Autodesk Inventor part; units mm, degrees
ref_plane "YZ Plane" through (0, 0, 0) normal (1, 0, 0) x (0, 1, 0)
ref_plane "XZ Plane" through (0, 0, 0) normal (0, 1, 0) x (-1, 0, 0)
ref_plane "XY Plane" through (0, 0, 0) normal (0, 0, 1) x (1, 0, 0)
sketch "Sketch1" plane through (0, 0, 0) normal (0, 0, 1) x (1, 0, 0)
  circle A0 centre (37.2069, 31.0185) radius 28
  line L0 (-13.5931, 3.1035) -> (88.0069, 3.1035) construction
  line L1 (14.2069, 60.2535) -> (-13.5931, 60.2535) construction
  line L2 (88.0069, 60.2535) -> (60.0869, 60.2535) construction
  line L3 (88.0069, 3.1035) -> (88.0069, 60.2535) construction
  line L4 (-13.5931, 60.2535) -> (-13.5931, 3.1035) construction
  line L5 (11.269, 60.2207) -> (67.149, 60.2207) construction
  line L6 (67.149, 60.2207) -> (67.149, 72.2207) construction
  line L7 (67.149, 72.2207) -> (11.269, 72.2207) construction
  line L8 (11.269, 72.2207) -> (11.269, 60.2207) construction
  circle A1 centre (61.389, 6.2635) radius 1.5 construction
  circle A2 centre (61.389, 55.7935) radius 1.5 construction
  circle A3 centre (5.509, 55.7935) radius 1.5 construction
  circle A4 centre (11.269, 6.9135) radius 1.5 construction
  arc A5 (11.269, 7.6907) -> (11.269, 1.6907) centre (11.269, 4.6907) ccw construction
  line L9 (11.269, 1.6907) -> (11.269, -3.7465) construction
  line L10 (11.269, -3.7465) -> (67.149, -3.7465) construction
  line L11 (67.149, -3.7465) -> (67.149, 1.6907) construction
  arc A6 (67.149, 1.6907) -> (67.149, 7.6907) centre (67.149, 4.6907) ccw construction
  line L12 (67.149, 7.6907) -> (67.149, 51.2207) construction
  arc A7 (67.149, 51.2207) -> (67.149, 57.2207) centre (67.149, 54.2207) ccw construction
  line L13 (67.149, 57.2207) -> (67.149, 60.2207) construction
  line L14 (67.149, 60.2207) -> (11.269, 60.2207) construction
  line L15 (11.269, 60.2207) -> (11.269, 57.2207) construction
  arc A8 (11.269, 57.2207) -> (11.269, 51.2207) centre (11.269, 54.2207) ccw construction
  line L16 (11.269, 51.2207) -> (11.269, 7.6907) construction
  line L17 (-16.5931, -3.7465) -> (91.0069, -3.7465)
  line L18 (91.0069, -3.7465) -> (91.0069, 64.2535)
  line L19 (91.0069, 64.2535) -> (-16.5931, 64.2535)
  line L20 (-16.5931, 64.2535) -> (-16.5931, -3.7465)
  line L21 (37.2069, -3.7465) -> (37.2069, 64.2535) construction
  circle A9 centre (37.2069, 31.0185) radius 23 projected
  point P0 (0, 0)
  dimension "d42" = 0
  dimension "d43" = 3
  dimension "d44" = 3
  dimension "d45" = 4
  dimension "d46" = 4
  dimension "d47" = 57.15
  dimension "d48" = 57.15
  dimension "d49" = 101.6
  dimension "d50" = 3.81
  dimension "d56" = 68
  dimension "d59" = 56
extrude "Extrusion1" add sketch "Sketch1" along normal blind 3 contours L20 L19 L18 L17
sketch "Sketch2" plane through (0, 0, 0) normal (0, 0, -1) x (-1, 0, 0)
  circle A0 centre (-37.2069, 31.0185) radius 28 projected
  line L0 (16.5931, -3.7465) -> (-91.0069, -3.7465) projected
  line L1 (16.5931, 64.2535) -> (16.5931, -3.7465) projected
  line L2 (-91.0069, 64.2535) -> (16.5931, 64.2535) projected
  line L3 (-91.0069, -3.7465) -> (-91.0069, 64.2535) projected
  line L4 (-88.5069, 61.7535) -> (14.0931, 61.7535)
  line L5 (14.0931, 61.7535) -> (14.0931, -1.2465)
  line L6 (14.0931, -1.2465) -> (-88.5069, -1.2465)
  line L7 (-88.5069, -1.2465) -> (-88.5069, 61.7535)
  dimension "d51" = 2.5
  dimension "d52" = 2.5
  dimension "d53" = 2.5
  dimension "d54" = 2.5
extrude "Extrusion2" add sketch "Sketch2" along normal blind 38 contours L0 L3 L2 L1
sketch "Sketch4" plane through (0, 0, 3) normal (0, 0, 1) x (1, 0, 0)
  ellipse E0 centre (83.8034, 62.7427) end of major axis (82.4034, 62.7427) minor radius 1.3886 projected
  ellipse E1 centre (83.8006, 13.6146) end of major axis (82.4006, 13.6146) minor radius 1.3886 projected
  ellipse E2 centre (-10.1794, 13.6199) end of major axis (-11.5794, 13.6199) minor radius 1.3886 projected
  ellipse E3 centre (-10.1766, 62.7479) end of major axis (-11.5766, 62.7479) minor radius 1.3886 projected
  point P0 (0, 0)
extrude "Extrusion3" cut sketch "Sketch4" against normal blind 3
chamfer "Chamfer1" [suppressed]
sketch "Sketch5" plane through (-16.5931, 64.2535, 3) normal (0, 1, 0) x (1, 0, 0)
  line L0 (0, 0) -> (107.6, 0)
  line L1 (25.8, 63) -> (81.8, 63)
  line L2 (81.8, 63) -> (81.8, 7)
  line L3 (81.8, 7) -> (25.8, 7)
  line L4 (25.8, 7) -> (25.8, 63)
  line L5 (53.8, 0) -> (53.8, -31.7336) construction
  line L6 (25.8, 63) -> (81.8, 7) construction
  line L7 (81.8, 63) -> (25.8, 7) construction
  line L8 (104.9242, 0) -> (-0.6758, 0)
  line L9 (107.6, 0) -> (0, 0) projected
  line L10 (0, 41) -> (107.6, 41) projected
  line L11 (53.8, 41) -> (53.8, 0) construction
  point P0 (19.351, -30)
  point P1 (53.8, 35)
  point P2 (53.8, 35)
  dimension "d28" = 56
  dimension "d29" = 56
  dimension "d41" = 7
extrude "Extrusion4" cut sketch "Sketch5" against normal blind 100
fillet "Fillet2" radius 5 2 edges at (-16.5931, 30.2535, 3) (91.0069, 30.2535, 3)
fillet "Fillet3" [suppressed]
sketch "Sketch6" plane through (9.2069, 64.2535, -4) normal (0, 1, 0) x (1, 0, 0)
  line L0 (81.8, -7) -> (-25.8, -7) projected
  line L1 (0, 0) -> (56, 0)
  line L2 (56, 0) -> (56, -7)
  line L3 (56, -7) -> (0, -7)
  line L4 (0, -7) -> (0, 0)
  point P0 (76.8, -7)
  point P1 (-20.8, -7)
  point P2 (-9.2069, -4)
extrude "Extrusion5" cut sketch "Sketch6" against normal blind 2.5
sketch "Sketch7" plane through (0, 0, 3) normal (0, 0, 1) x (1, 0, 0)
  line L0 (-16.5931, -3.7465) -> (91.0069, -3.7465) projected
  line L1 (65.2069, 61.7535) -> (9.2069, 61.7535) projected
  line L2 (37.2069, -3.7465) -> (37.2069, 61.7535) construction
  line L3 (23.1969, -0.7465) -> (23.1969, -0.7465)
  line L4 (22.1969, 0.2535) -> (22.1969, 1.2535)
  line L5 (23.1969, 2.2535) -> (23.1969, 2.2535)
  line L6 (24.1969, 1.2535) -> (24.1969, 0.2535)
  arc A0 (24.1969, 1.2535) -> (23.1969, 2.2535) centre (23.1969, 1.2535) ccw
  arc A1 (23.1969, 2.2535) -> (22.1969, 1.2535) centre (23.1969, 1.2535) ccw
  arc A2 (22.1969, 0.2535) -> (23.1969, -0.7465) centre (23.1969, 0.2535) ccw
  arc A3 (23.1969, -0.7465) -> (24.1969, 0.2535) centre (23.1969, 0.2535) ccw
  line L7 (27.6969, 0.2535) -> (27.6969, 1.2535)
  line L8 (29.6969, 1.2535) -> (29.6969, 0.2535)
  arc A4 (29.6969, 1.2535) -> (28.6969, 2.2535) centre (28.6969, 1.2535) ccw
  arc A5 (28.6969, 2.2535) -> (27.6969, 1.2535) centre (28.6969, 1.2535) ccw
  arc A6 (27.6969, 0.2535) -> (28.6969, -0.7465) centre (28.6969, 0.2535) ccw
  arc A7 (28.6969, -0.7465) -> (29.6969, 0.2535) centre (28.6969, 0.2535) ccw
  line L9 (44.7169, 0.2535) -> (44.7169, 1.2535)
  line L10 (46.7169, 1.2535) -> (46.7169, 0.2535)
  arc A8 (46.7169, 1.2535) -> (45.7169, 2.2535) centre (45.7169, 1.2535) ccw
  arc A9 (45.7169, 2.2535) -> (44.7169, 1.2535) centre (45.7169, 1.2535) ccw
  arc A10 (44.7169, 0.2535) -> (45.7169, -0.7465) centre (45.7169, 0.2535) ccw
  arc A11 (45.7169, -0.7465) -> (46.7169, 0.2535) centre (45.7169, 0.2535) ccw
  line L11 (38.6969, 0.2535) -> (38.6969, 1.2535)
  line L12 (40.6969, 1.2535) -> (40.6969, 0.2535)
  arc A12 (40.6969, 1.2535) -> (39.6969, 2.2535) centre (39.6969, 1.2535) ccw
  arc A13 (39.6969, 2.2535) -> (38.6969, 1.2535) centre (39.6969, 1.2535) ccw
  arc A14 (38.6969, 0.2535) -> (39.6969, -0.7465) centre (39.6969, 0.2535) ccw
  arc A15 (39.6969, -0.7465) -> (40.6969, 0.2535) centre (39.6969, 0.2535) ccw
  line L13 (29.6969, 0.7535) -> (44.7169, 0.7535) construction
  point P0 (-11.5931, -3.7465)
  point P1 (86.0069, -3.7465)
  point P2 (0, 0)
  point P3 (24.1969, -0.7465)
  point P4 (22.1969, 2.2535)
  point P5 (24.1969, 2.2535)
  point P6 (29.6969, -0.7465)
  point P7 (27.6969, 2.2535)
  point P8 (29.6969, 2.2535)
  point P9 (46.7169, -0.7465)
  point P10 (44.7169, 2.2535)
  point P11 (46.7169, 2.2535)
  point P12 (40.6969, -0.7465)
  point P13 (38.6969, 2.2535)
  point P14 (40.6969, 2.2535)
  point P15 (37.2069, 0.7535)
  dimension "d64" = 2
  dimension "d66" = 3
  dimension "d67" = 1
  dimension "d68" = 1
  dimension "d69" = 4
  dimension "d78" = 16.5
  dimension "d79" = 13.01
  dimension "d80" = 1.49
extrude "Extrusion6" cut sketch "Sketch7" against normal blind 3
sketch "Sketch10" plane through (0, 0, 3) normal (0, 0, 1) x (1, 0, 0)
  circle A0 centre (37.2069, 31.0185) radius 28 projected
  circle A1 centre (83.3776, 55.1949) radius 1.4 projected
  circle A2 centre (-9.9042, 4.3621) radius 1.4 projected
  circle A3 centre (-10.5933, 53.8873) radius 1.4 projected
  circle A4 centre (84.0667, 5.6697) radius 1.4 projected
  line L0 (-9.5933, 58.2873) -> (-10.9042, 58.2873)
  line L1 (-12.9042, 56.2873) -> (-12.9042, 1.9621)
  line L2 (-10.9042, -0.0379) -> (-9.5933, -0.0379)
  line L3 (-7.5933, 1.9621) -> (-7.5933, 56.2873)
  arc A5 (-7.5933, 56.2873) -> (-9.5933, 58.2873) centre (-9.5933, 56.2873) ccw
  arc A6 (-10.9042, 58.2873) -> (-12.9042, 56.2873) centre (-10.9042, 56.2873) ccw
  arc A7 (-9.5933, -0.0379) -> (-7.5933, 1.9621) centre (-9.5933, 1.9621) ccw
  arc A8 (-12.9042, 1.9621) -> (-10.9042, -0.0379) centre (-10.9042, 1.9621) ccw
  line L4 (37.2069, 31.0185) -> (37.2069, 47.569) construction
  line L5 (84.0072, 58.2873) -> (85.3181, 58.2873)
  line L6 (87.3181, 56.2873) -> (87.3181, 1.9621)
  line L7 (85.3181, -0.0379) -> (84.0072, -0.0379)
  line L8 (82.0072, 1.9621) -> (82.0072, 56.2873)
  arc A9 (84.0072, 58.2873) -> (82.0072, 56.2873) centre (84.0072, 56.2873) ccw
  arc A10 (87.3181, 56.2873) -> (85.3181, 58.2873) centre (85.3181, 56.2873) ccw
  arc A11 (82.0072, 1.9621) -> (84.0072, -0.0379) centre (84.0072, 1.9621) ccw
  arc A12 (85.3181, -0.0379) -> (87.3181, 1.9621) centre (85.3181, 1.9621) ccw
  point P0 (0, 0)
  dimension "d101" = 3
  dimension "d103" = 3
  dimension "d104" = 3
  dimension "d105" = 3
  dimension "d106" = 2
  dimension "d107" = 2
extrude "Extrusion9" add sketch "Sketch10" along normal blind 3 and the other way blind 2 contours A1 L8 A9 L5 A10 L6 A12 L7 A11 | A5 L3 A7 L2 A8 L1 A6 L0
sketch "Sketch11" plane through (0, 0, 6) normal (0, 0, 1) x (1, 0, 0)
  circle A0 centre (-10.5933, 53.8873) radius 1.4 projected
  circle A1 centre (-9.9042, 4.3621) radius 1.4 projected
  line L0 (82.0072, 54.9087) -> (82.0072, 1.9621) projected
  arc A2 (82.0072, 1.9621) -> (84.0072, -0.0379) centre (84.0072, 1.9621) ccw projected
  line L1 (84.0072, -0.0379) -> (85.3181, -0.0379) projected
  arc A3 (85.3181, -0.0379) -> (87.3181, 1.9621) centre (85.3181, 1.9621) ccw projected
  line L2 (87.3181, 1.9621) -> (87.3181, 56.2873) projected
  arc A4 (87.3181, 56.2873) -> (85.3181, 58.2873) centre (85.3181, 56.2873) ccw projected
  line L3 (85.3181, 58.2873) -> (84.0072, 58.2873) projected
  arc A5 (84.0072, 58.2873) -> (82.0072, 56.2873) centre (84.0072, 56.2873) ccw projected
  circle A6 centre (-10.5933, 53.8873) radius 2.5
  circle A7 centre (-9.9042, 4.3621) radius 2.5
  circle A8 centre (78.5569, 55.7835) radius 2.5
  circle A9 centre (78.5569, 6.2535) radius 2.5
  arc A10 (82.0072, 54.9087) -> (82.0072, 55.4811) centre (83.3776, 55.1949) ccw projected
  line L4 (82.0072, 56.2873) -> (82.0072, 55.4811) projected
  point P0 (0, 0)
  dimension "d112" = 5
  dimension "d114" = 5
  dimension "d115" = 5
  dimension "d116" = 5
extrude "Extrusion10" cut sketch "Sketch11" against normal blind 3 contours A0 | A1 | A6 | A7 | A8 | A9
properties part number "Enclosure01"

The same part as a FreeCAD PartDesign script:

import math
import FreeCAD as App
import Part
import Sketcher
from FreeCAD import Vector


def edges_at(feature, points):
    """Names of the edges that pass closest to the given points."""
    edges = feature.Shape.Edges
    near = lambda p: min(range(len(edges)), key=lambda i: edges[i].distToShape(Part.Vertex(*p))[0])
    return sorted({f"Edge{near(p) + 1}" for p in points})

doc = App.newDocument("Part")
params = doc.addObject("Spreadsheet::Sheet", "Params")
for row, (alias, value) in enumerate([
    ("sketch1_diameter", "56 mm"),
    ("sketch1_height", "68 mm"),
    ("sketch1_width", "107.6 mm"),
    ("pad1_length", "3 mm"),
    ("sketch2_height", "68 mm"),
    ("sketch2_width", "107.6 mm"),
    ("pad2_length", "38 mm"),
    ("pocket1_length", "3 mm"),
    ("sketch4_width", "56 mm"),
    ("pocket2_length", "100 mm"),
    ("fillet_radius", "5 mm"),
    ("sketch5_width", "56 mm"),
    ("sketch5_height", "7 mm"),
    ("pocket3_length", "2.5 mm"),
    ("sketch6_radius", "1 mm"),
    ("sketch6_height", "1 mm"),
    ("pocket4_length", "3 mm"),
    ("sketch7_radius", "2 mm"),
    ("sketch7_diameter", "2.8 mm"),
    ("pad3_length", "3 mm"),
    ("pad3_length2", "2 mm"),
    ("sketch8_diameter", "5 mm"),
    ("pocket5_length", "3 mm"),
], start=1):
    params.set(f"A{row}", alias)
    params.set(f"B{row}", "=" + value)
    params.setAlias(f"B{row}", alias)

body = doc.addObject("PartDesign::Body", "Body")

# Sketch on XY plane
sketch1 = body.newObject("Sketcher::SketchObject", "Sketch")
sketch1.AttachmentSupport = (doc.getObject("XY_Plane"), [""])
sketch1.MapMode = "FlatFace"
sketch1.addGeometry([
    Part.LineSegment(Vector(-17, 64, 0), Vector(-17, -4, 0)),  # 0
    Part.LineSegment(Vector(-17, -4, 0), Vector(91, -4, 0)),  # 1
    Part.LineSegment(Vector(91, -4, 0), Vector(91, 64, 0)),  # 2
    Part.LineSegment(Vector(91, 64, 0), Vector(-17, 64, 0)),  # 3
    Part.Circle(Vector(37, 31, 0), Vector(0, 0, 1), 28),  # 4
], False)
sketch1.addConstraint([
    Sketcher.Constraint("Coincident", 0, 2, 1, 1),
    Sketcher.Constraint("Coincident", 1, 2, 2, 1),
    Sketcher.Constraint("Coincident", 2, 2, 3, 1),
    Sketcher.Constraint("Coincident", 3, 2, 0, 1),
    Sketcher.Constraint("Vertical", 0),
    Sketcher.Constraint("Horizontal", 1),
    Sketcher.Constraint("Vertical", 2),
    Sketcher.Constraint("Horizontal", 3),
    Sketcher.Constraint("Diameter", 4, 56.0),
    Sketcher.Constraint("DistanceY", 0, 2, 0, 1, 68.0),
    Sketcher.Constraint("DistanceX", 1, 1, 1, 2, 107.6),
    Sketcher.Constraint("DistanceX", 0, 2, 4, 3, 53.8),
    Sketcher.Constraint("DistanceX", -1, 1, 4, 3, 37.207),
    Sketcher.Constraint("DistanceY", 0, 2, 4, 3, 34.765),
    Sketcher.Constraint("DistanceY", -1, 1, 4, 3, 31.0185),
])
sketch1.setExpression("Constraints[8]", "Params.sketch1_diameter")
sketch1.setExpression("Constraints[9]", "Params.sketch1_height")
sketch1.setExpression("Constraints[10]", "Params.sketch1_width")
pad1 = body.newObject("PartDesign::Pad", "Pad")
pad1.Profile = sketch1
pad1.setExpression("Length", "Params.pad1_length")

# Sketch on XY plane
sketch2 = body.newObject("Sketcher::SketchObject", "Sketch001")
sketch2.AttachmentSupport = (doc.getObject("XY_Plane"), [""])
sketch2.MapMode = "FlatFace"
sketch2.addGeometry([
    Part.LineSegment(Vector(91, -4, 0), Vector(-17, -4, 0)),  # 0
    Part.LineSegment(Vector(-17, -4, 0), Vector(-17, 64, 0)),  # 1
    Part.LineSegment(Vector(-17, 64, 0), Vector(91, 64, 0)),  # 2
    Part.LineSegment(Vector(91, 64, 0), Vector(91, -4, 0)),  # 3
    Part.LineSegment(Vector(89, -1, 0), Vector(89, 62, 0)),  # 4
    Part.LineSegment(Vector(89, 62, 0), Vector(-14, 62, 0)),  # 5
    Part.LineSegment(Vector(-14, 62, 0), Vector(-14, -1, 0)),  # 6
    Part.LineSegment(Vector(-14, -1, 0), Vector(89, -1, 0)),  # 7
], False)
sketch2.addConstraint([
    Sketcher.Constraint("Coincident", 0, 2, 1, 1),
    Sketcher.Constraint("Coincident", 1, 2, 2, 1),
    Sketcher.Constraint("Coincident", 2, 2, 3, 1),
    Sketcher.Constraint("Coincident", 3, 2, 0, 1),
    Sketcher.Constraint("Coincident", 4, 2, 5, 1),
    Sketcher.Constraint("Coincident", 5, 2, 6, 1),
    Sketcher.Constraint("Coincident", 6, 2, 7, 1),
    Sketcher.Constraint("Coincident", 7, 2, 4, 1),
    Sketcher.Constraint("Horizontal", 0),
    Sketcher.Constraint("Vertical", 1),
    Sketcher.Constraint("Horizontal", 2),
    Sketcher.Constraint("Vertical", 3),
    Sketcher.Constraint("Vertical", 4),
    Sketcher.Constraint("Horizontal", 5),
    Sketcher.Constraint("Vertical", 6),
    Sketcher.Constraint("Horizontal", 7),
    Sketcher.Constraint("DistanceX", 4, 2, 2, 2, 2.5),
    Sketcher.Constraint("DistanceY", 4, 2, 2, 2, 2.5),
    Sketcher.Constraint("DistanceX", 1, 2, 5, 2, 2.5),
    Sketcher.Constraint("DistanceY", 0, 2, 6, 2, 2.5),
    Sketcher.Constraint("DistanceY", 1, 1, 1, 2, 68.0),
    Sketcher.Constraint("DistanceX", 0, 2, 0, 1, 107.6),
    Sketcher.Constraint("DistanceX", 0, 2, -1, 1, 16.593),
    Sketcher.Constraint("DistanceY", 0, 2, -1, 1, 3.7465),
])
sketch2.setExpression("Constraints[20]", "Params.sketch2_height")
sketch2.setExpression("Constraints[21]", "Params.sketch2_width")
pad2 = body.newObject("PartDesign::Pad", "Pad001")
pad2.Profile = sketch2
pad2.setExpression("Length", "Params.pad2_length")
pad2.Reversed = True

# Sketch on XY plane
sketch3 = body.newObject("Sketcher::SketchObject", "Sketch002")
sketch3.AttachmentSupport = (doc.getObject("XY_Plane"), [""])
sketch3.MapMode = "FlatFace"
sketch3.AttachmentOffset = App.Placement(Vector(0, 0, 3), App.Rotation())
sketch3.addGeometry([
    Part.Ellipse(Vector(82.4034, 62.7427, 0), Vector(83.8034, 61.3541, 0), Vector(83.8034, 62.7427, 0)),
    Part.Ellipse(Vector(82.4006, 13.6146, 0), Vector(83.8006, 12.226, 0), Vector(83.8006, 13.6146, 0)),
    Part.Ellipse(Vector(-11.5794, 13.6199, 0), Vector(-10.1794, 12.2313, 0), Vector(-10.1794, 13.6199, 0)),
    Part.Ellipse(Vector(-11.5766, 62.7479, 0), Vector(-10.1766, 61.3593, 0), Vector(-10.1766, 62.7479, 0)),
], False)
sketch3.addConstraint([
    Sketcher.Constraint("Block", 0),
    Sketcher.Constraint("Block", 1),
    Sketcher.Constraint("Block", 2),
    Sketcher.Constraint("Block", 3),
])
pocket1 = body.newObject("PartDesign::Pocket", "Pocket")
pocket1.Profile = sketch3
pocket1.setExpression("Length", "Params.pocket1_length")

# Sketch on XZ plane
sketch4 = body.newObject("Sketcher::SketchObject", "Sketch003")
sketch4.AttachmentSupport = (doc.getObject("XZ_Plane"), [""])
sketch4.MapMode = "FlatFace"
sketch4.AttachmentOffset = App.Placement(Vector(0, 0, -64.2535), App.Rotation())
sketch4.addGeometry([
    Part.LineSegment(Vector(65, -60, 0), Vector(9, -60, 0)),
    Part.LineSegment(Vector(9, -60, 0), Vector(9, -4, 0)),
    Part.LineSegment(Vector(9, -4, 0), Vector(65, -4, 0)),
    Part.LineSegment(Vector(65, -4, 0), Vector(65, -60, 0)),
], False)
sketch4.addConstraint([
    Sketcher.Constraint("Coincident", 0, 2, 1, 1),
    Sketcher.Constraint("Coincident", 1, 2, 2, 1),
    Sketcher.Constraint("Coincident", 2, 2, 3, 1),
    Sketcher.Constraint("Coincident", 3, 2, 0, 1),
    Sketcher.Constraint("Horizontal", 0),
    Sketcher.Constraint("Vertical", 1),
    Sketcher.Constraint("Horizontal", 2),
    Sketcher.Constraint("Vertical", 3),
    Sketcher.Constraint("Equal", 2, 1),
    Sketcher.Constraint("DistanceX", 0, 2, 0, 1, 56.0),
    Sketcher.Constraint("DistanceY", 0, 2, -1, 1, 60.0),
    Sketcher.Constraint("DistanceX", -1, 1, 0, 2, 9.207),
])
sketch4.setExpression("Constraints[9]", "Params.sketch4_width")
pocket2 = body.newObject("PartDesign::Pocket", "Pocket001")
pocket2.Profile = sketch4
pocket2.setExpression("Length", "Params.pocket2_length")
pocket2.Reversed = True
doc.recompute()

fillet = body.newObject("PartDesign::Fillet", "Fillet")
fillet.Base = (pocket2, edges_at(pocket2, [(-16.593, 30.253, 3), (91.007, 30.253, 3)]))
fillet.setExpression("Radius", "Params.fillet_radius")

# Sketch on XZ plane
sketch5 = body.newObject("Sketcher::SketchObject", "Sketch004")
sketch5.AttachmentSupport = (doc.getObject("XZ_Plane"), [""])
sketch5.MapMode = "FlatFace"
sketch5.AttachmentOffset = App.Placement(Vector(0, 0, -64.2535), App.Rotation())
sketch5.addGeometry([
    Part.LineSegment(Vector(9, 3, 0), Vector(65, 3, 0)),
    Part.LineSegment(Vector(65, 3, 0), Vector(65, -4, 0)),
    Part.LineSegment(Vector(65, -4, 0), Vector(9, -4, 0)),
    Part.LineSegment(Vector(9, -4, 0), Vector(9, 3, 0)),
], False)
sketch5.addConstraint([
    Sketcher.Constraint("Coincident", 0, 2, 1, 1),
    Sketcher.Constraint("Coincident", 1, 2, 2, 1),
    Sketcher.Constraint("Coincident", 2, 2, 3, 1),
    Sketcher.Constraint("Coincident", 3, 2, 0, 1),
    Sketcher.Constraint("Horizontal", 0),
    Sketcher.Constraint("Vertical", 1),
    Sketcher.Constraint("Horizontal", 2),
    Sketcher.Constraint("Vertical", 3),
    Sketcher.Constraint("DistanceX", 0, 1, 0, 2, 56.0),
    Sketcher.Constraint("DistanceY", 1, 2, 1, 1, 7.0),
    Sketcher.Constraint("DistanceY", -1, 1, 0, 2, 3.0),
    Sketcher.Constraint("DistanceX", -1, 1, 0, 2, 65.207),
])
sketch5.setExpression("Constraints[8]", "Params.sketch5_width")
sketch5.setExpression("Constraints[9]", "Params.sketch5_height")
pocket3 = body.newObject("PartDesign::Pocket", "Pocket002")
pocket3.Profile = sketch5
pocket3.setExpression("Length", "Params.pocket3_length")
pocket3.Reversed = True

# Sketch on XY plane
sketch6 = body.newObject("Sketcher::SketchObject", "Sketch005")
sketch6.AttachmentSupport = (doc.getObject("XY_Plane"), [""])
sketch6.MapMode = "FlatFace"
sketch6.AttachmentOffset = App.Placement(Vector(0, 0, 3), App.Rotation())
sketch6.addGeometry([
    Part.LineSegment(Vector(22.2, 1.3, 0), Vector(22.2, 0.3, 0)),  # 0
    Part.ArcOfCircle(Part.Circle(Vector(23.2, 0.3, 0), Vector(0, 0, 1), 1), math.radians(180), math.radians(360)),  # 1
    Part.LineSegment(Vector(24.2, 0.3, 0), Vector(24.2, 1.3, 0)),  # 2
    Part.ArcOfCircle(Part.Circle(Vector(23.2, 1.3, 0), Vector(0, 0, 1), 1), math.radians(0), math.radians(180)),  # 3
    Part.LineSegment(Vector(27.7, 1.3, 0), Vector(27.7, 0.3, 0)),  # 4
    Part.ArcOfCircle(Part.Circle(Vector(28.7, 0.3, 0), Vector(0, 0, 1), 1), math.radians(180), math.radians(360)),  # 5
    Part.LineSegment(Vector(29.7, 0.3, 0), Vector(29.7, 1.3, 0)),  # 6
    Part.ArcOfCircle(Part.Circle(Vector(28.7, 1.3, 0), Vector(0, 0, 1), 1), math.radians(0), math.radians(180)),  # 7
    Part.LineSegment(Vector(44.7, 1.3, 0), Vector(44.7, 0.3, 0)),  # 8
    Part.ArcOfCircle(Part.Circle(Vector(45.7, 0.3, 0), Vector(0, 0, 1), 1), math.radians(180), math.radians(360)),  # 9
    Part.LineSegment(Vector(46.7, 0.3, 0), Vector(46.7, 1.3, 0)),  # 10
    Part.ArcOfCircle(Part.Circle(Vector(45.7, 1.3, 0), Vector(0, 0, 1), 1), math.radians(0), math.radians(180)),  # 11
    Part.LineSegment(Vector(38.7, 1.3, 0), Vector(38.7, 0.3, 0)),  # 12
    Part.ArcOfCircle(Part.Circle(Vector(39.7, 0.3, 0), Vector(0, 0, 1), 1), math.radians(180), math.radians(360)),  # 13
    Part.LineSegment(Vector(40.7, 0.3, 0), Vector(40.7, 1.3, 0)),  # 14
    Part.ArcOfCircle(Part.Circle(Vector(39.7, 1.3, 0), Vector(0, 0, 1), 1), math.radians(0), math.radians(180)),  # 15
], False)
sketch6.addConstraint([
    Sketcher.Constraint("Tangent", 0, 2, 1, 1),
    Sketcher.Constraint("Tangent", 1, 2, 2, 1),
    Sketcher.Constraint("Tangent", 2, 2, 3, 1),
    Sketcher.Constraint("Tangent", 3, 2, 0, 1),
    Sketcher.Constraint("Tangent", 4, 2, 5, 1),
    Sketcher.Constraint("Tangent", 5, 2, 6, 1),
    Sketcher.Constraint("Tangent", 6, 2, 7, 1),
    Sketcher.Constraint("Tangent", 7, 2, 4, 1),
    Sketcher.Constraint("Tangent", 8, 2, 9, 1),
    Sketcher.Constraint("Tangent", 9, 2, 10, 1),
    Sketcher.Constraint("Tangent", 10, 2, 11, 1),
    Sketcher.Constraint("Tangent", 11, 2, 8, 1),
    Sketcher.Constraint("Tangent", 12, 2, 13, 1),
    Sketcher.Constraint("Tangent", 13, 2, 14, 1),
    Sketcher.Constraint("Tangent", 14, 2, 15, 1),
    Sketcher.Constraint("Tangent", 15, 2, 12, 1),
    Sketcher.Constraint("Vertical", 0),
    Sketcher.Constraint("Vertical", 2),
    Sketcher.Constraint("Vertical", 4),
    Sketcher.Constraint("Vertical", 6),
    Sketcher.Constraint("Vertical", 8),
    Sketcher.Constraint("Vertical", 10),
    Sketcher.Constraint("Vertical", 12),
    Sketcher.Constraint("Vertical", 14),
    Sketcher.Constraint("Equal", 3, 5),
    Sketcher.Constraint("Equal", 7, 9),
    Sketcher.Constraint("Equal", 11, 13),
    Sketcher.Constraint("Horizontal", 1, 3, 5, 3),
    Sketcher.Constraint("Horizontal", 3, 3, 7, 3),
    Sketcher.Constraint("Horizontal", 5, 3, 9, 3),
    Sketcher.Constraint("Horizontal", 7, 3, 11, 3),
    Sketcher.Constraint("Horizontal", 9, 3, 13, 3),
    Sketcher.Constraint("Horizontal", 11, 3, 15, 3),
    Sketcher.Constraint("Radius", 1, 1.0),
    Sketcher.Constraint("DistanceY", 0, 2, 0, 1, 1.0),
    Sketcher.Constraint("DistanceX", 1, 3, 13, 3, 16.5),
    Sketcher.Constraint("DistanceX", 5, 3, 13, 3, 11.0),
    Sketcher.Constraint("DistanceX", 5, 3, 9, 3, 17.02),
    Sketcher.Constraint("DistanceX", -1, 1, 1, 3, 23.197),
    Sketcher.Constraint("DistanceY", -1, 1, 1, 3, 0.2535),
])
sketch6.setExpression("Constraints[33]", "Params.sketch6_radius")
sketch6.setExpression("Constraints[34]", "Params.sketch6_height")
pocket4 = body.newObject("PartDesign::Pocket", "Pocket003")
pocket4.Profile = sketch6
pocket4.setExpression("Length", "Params.pocket4_length")

# Sketch on XY plane
sketch7 = body.newObject("Sketcher::SketchObject", "Sketch006")
sketch7.AttachmentSupport = (doc.getObject("XY_Plane"), [""])
sketch7.MapMode = "FlatFace"
sketch7.AttachmentOffset = App.Placement(Vector(0, 0, 3), App.Rotation())
sketch7.addGeometry([
    Part.ArcOfCircle(Part.Circle(Vector(83.4, 55.2, 0), Vector(0, 0, 1), 1.4), math.radians(-168), math.radians(168)),  # 0
    Part.LineSegment(Vector(82, 54.9, 0), Vector(82, 2, 0)),  # 1
    Part.ArcOfCircle(Part.Circle(Vector(84, 2, 0), Vector(0, 0, 1), 2), math.radians(180), math.radians(270)),  # 2
    Part.LineSegment(Vector(84, 0, 0), Vector(85.3, 0, 0)),  # 3
    Part.ArcOfCircle(Part.Circle(Vector(85.3, 2, 0), Vector(0, 0, 1), 2), math.radians(-90), math.radians(0)),  # 4
    Part.LineSegment(Vector(87.3, 2, 0), Vector(87.3, 56.3, 0)),  # 5
    Part.ArcOfCircle(Part.Circle(Vector(85.3, 56.3, 0), Vector(0, 0, 1), 2), math.radians(0), math.radians(90)),  # 6
    Part.LineSegment(Vector(85.3, 58.3, 0), Vector(84, 58.3, 0)),  # 7
    Part.ArcOfCircle(Part.Circle(Vector(84, 56.3, 0), Vector(0, 0, 1), 2), math.radians(90), math.radians(180)),  # 8
    Part.LineSegment(Vector(82, 56.3, 0), Vector(82, 55.5, 0)),  # 9
    Part.Circle(Vector(84.1, 5.7, 0), Vector(0, 0, 1), 1.4),  # 10
    Part.ArcOfCircle(Part.Circle(Vector(-9.6, 56.3, 0), Vector(0, 0, 1), 2), math.radians(0), math.radians(90)),  # 11
    Part.LineSegment(Vector(-9.6, 58.3, 0), Vector(-10.9, 58.3, 0)),  # 12
    Part.ArcOfCircle(Part.Circle(Vector(-10.9, 56.3, 0), Vector(0, 0, 1), 2), math.radians(90), math.radians(180)),  # 13
    Part.LineSegment(Vector(-12.9, 56.3, 0), Vector(-12.9, 2, 0)),  # 14
    Part.ArcOfCircle(Part.Circle(Vector(-10.9, 2, 0), Vector(0, 0, 1), 2), math.radians(180), math.radians(270)),  # 15
    Part.LineSegment(Vector(-10.9, 0, 0), Vector(-9.6, 0, 0)),  # 16
    Part.ArcOfCircle(Part.Circle(Vector(-9.6, 2, 0), Vector(0, 0, 1), 2), math.radians(-90), math.radians(0)),  # 17
    Part.LineSegment(Vector(-7.6, 2, 0), Vector(-7.6, 56.3, 0)),  # 18
    Part.Circle(Vector(-9.9, 4.4, 0), Vector(0, 0, 1), 1.4),  # 19
    Part.Circle(Vector(-10.6, 53.9, 0), Vector(0, 0, 1), 1.4),  # 20
], False)
sketch7.addConstraint([
    Sketcher.Constraint("Coincident", 0, 1, 1, 1),
    Sketcher.Constraint("Tangent", 1, 2, 2, 1),
    Sketcher.Constraint("Tangent", 2, 2, 3, 1),
    Sketcher.Constraint("Tangent", 3, 2, 4, 1),
    Sketcher.Constraint("Tangent", 4, 2, 5, 1),
    Sketcher.Constraint("Tangent", 5, 2, 6, 1),
    Sketcher.Constraint("Tangent", 6, 2, 7, 1),
    Sketcher.Constraint("Tangent", 7, 2, 8, 1),
    Sketcher.Constraint("Tangent", 8, 2, 9, 1),
    Sketcher.Constraint("Coincident", 9, 2, 0, 2),
    Sketcher.Constraint("Tangent", 11, 2, 12, 1),
    Sketcher.Constraint("Tangent", 12, 2, 13, 1),
    Sketcher.Constraint("Tangent", 13, 2, 14, 1),
    Sketcher.Constraint("Tangent", 14, 2, 15, 1),
    Sketcher.Constraint("Tangent", 15, 2, 16, 1),
    Sketcher.Constraint("Tangent", 16, 2, 17, 1),
    Sketcher.Constraint("Tangent", 17, 2, 18, 1),
    Sketcher.Constraint("Tangent", 18, 2, 11, 1),
    Sketcher.Constraint("Vertical", 1),
    Sketcher.Constraint("Horizontal", 3),
    Sketcher.Constraint("Vertical", 5),
    Sketcher.Constraint("Horizontal", 7),
    Sketcher.Constraint("Vertical", 9),
    Sketcher.Constraint("Horizontal", 12),
    Sketcher.Constraint("Vertical", 14),
    Sketcher.Constraint("Horizontal", 16),
    Sketcher.Constraint("Vertical", 18),
    Sketcher.Constraint("Equal", 2, 4),
    Sketcher.Constraint("Equal", 4, 6),
    Sketcher.Constraint("Equal", 6, 8),
    Sketcher.Constraint("Equal", 0, 10),
    Sketcher.Constraint("Equal", 8, 11),
    Sketcher.Constraint("Equal", 11, 13),
    Sketcher.Constraint("Equal", 13, 15),
    Sketcher.Constraint("Equal", 15, 17),
    Sketcher.Constraint("Equal", 10, 19),
    Sketcher.Constraint("Equal", 19, 20),
    Sketcher.Constraint("Horizontal", 8, 3, 11, 3),
    Sketcher.Constraint("Horizontal", 4, 3, 15, 3),
    Sketcher.Constraint("Vertical", 2, 3, 8, 3),
    Sketcher.Constraint("Equal", 7, 12),
    Sketcher.Constraint("Radius", 2, 2.0),
    Sketcher.Constraint("DistanceX", 14, 2, 19, 3, 3.0),
    Sketcher.Constraint("DistanceX", 20, 3, 18, 2, 3.0),
    Sketcher.Constraint("Diameter", 10, 2.8),
    Sketcher.Constraint("DistanceY", 17, 3, 19, 3, 2.4),
    Sketcher.Constraint("DistanceY", 20, 3, 13, 3, 2.4),
    Sketcher.Constraint("DistanceX", 3, 1, 3, 2, 1.311),
    Sketcher.Constraint("DistanceY", 9, 2, 9, 1, 0.806),
    Sketcher.Constraint("DistanceX", 11, 3, 10, 3, 93.66),
    Sketcher.Constraint("DistanceY", 1, 2, 1, 1, 52.9464),
    Sketcher.Constraint("DistanceY", 5, 1, 5, 2, 54.3252),
    Sketcher.Constraint("DistanceY", -1, 1, 0, 3, 55.195),
    Sketcher.Constraint("DistanceX", -1, 1, 4, 3, 85.318),
    Sketcher.Constraint("DistanceX", 0, 3, 10, 3, 0.689),
    Sketcher.Constraint("DistanceY", -1, 1, 10, 3, 5.6697),
])
sketch7.setExpression("Constraints[41]", "Params.sketch7_radius")
sketch7.setExpression("Constraints[44]", "Params.sketch7_diameter")
pad3 = body.newObject("PartDesign::Pad", "Pad002")
pad3.Profile = sketch7
pad3.Type = "TwoLengths"
pad3.setExpression("Length", "Params.pad3_length")
pad3.setExpression("Length2", "Params.pad3_length2")

# Sketch on XY plane
sketch8 = body.newObject("Sketcher::SketchObject", "Sketch007")
sketch8.AttachmentSupport = (doc.getObject("XY_Plane"), [""])
sketch8.MapMode = "FlatFace"
sketch8.AttachmentOffset = App.Placement(Vector(0, 0, 6), App.Rotation())
sketch8.addGeometry([
    Part.Circle(Vector(-10.6, 53.9, 0), Vector(0, 0, 1), 2.5),
    Part.Circle(Vector(-9.9, 4.4, 0), Vector(0, 0, 1), 2.5),
    Part.Circle(Vector(78.6, 55.8, 0), Vector(0, 0, 1), 2.5),
    Part.Circle(Vector(78.6, 6.3, 0), Vector(0, 0, 1), 2.5),
], False)
sketch8.addConstraint([
    Sketcher.Constraint("Equal", 0, 1),
    Sketcher.Constraint("Equal", 1, 2),
    Sketcher.Constraint("Equal", 2, 3),
    Sketcher.Constraint("Vertical", 2, 3, 3, 3),
    Sketcher.Constraint("Diameter", 0, 5.0),
    Sketcher.Constraint("DistanceY", 3, 3, 2, 3, 49.53),
    Sketcher.Constraint("DistanceY", -1, 1, 1, 3, 4.362),
    Sketcher.Constraint("DistanceX", -1, 1, 2, 3, 78.557),
    Sketcher.Constraint("DistanceX", 0, 3, 1, 3, 0.689),
    Sketcher.Constraint("DistanceX", 1, 3, 2, 3, 88.461),
    Sketcher.Constraint("DistanceY", -1, 1, 0, 3, 53.8873),
    Sketcher.Constraint("DistanceY", -1, 1, 2, 3, 55.7835),
])
sketch8.setExpression("Constraints[4]", "Params.sketch8_diameter")
pocket5 = body.newObject("PartDesign::Pocket", "Pocket004")
pocket5.Profile = sketch8
pocket5.setExpression("Length", "Params.pocket5_length")

doc.recompute()
